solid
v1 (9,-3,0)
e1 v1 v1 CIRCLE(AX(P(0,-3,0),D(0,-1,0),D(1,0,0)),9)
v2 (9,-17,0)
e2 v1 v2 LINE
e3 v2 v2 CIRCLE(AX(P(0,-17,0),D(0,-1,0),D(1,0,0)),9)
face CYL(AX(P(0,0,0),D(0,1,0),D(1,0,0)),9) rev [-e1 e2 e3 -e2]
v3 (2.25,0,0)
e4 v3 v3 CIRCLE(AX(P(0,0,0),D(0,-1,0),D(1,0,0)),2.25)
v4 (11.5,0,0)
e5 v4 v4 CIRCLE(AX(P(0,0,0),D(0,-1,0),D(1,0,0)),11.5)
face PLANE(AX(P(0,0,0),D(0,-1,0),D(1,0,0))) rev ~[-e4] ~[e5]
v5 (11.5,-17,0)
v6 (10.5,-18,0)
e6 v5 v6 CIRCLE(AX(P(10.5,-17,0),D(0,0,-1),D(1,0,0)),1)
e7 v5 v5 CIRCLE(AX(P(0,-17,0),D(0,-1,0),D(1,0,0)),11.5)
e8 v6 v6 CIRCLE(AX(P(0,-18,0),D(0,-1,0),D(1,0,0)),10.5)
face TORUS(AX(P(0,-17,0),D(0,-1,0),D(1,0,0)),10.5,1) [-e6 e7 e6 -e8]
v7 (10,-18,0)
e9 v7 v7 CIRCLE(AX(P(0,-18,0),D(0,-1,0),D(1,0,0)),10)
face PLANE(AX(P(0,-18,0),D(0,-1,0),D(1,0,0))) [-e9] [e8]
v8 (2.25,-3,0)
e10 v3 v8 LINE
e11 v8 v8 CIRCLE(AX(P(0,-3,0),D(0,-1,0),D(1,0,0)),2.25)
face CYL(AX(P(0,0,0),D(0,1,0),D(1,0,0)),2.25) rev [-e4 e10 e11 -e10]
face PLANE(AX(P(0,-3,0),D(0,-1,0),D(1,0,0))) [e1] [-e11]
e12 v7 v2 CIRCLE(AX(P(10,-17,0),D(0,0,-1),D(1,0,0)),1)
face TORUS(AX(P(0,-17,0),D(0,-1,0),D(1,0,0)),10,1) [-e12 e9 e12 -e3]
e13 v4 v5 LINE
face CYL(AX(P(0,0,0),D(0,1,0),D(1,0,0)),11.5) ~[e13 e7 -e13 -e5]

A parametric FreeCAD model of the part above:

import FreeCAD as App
import Part
import Sketcher
from FreeCAD import Vector
Q = App.Units.Quantity


def edges_at(feature, points):
    """Names of the edges that pass closest to the given points."""
    edges = feature.Shape.Edges
    near = lambda p: min(range(len(edges)), key=lambda i: edges[i].distToShape(Part.Vertex(*p))[0])
    return sorted({f"Edge{near(p) + 1}" for p in points})

doc = App.newDocument("Part")
body = doc.addObject("PartDesign::Body", "Body")

# Sketch on XZ plane
sketch1 = doc.addObject("Sketcher::SketchObject", "Sketch")
body.addObject(sketch1)
sketch1.AttachmentSupport = (doc.XZ_Plane, [""])
sketch1.MapMode = "FlatFace"
sketch1.addGeometry(Part.Circle(Vector(0, 0, 0), Vector(0, 0, 1), 9), False)
sketch1.addGeometry(Part.Circle(Vector(0, 0, 0), Vector(0, 0, 1), 2.2), False)
sketch1.addConstraint(Sketcher.Constraint("Coincident", 0, 3, -1, 1))
sketch1.addConstraint(Sketcher.Constraint("Coincident", 1, 3, -1, 1))
sketch1.addConstraint(Sketcher.Constraint("Diameter", 0, Q("18 mm")))
sketch1.addConstraint(Sketcher.Constraint("Diameter", 1, Q("4.5 mm")))
pad1 = doc.addObject("PartDesign::Pad", "Pad")
body.addObject(pad1)
pad1.Profile = sketch1
pad1.Length = 3

# Sketch on XZ plane
sketch2 = doc.addObject("Sketcher::SketchObject", "Sketch001")
body.addObject(sketch2)
sketch2.AttachmentSupport = (doc.XZ_Plane, [""])
sketch2.MapMode = "FlatFace"
sketch2.addGeometry(Part.Circle(Vector(0, 0, 0), Vector(0, 0, 1), 12), False)
sketch2.addGeometry(Part.Circle(Vector(0, 0, 0), Vector(0, 0, 1), 9), False)
sketch2.addConstraint(Sketcher.Constraint("Coincident", 0, 3, -1, 1))
sketch2.addConstraint(Sketcher.Constraint("Coincident", 1, 3, -1, 1))
sketch2.addConstraint(Sketcher.Constraint("Diameter", 0, Q("23 mm")))
sketch2.addConstraint(Sketcher.Constraint("Diameter", 1, Q("18 mm")))
pad2 = doc.addObject("PartDesign::Pad", "Pad001")
body.addObject(pad2)
pad2.Profile = sketch2
pad2.Length = 18
doc.recompute()

fillet = doc.addObject("PartDesign::Fillet", "Fillet")
body.addObject(fillet)
fillet.Base = (pad2, edges_at(pad2, [(-9, -18, 0), (-11.5, -18, 0)]))
fillet.Radius = 1

doc.recompute()
